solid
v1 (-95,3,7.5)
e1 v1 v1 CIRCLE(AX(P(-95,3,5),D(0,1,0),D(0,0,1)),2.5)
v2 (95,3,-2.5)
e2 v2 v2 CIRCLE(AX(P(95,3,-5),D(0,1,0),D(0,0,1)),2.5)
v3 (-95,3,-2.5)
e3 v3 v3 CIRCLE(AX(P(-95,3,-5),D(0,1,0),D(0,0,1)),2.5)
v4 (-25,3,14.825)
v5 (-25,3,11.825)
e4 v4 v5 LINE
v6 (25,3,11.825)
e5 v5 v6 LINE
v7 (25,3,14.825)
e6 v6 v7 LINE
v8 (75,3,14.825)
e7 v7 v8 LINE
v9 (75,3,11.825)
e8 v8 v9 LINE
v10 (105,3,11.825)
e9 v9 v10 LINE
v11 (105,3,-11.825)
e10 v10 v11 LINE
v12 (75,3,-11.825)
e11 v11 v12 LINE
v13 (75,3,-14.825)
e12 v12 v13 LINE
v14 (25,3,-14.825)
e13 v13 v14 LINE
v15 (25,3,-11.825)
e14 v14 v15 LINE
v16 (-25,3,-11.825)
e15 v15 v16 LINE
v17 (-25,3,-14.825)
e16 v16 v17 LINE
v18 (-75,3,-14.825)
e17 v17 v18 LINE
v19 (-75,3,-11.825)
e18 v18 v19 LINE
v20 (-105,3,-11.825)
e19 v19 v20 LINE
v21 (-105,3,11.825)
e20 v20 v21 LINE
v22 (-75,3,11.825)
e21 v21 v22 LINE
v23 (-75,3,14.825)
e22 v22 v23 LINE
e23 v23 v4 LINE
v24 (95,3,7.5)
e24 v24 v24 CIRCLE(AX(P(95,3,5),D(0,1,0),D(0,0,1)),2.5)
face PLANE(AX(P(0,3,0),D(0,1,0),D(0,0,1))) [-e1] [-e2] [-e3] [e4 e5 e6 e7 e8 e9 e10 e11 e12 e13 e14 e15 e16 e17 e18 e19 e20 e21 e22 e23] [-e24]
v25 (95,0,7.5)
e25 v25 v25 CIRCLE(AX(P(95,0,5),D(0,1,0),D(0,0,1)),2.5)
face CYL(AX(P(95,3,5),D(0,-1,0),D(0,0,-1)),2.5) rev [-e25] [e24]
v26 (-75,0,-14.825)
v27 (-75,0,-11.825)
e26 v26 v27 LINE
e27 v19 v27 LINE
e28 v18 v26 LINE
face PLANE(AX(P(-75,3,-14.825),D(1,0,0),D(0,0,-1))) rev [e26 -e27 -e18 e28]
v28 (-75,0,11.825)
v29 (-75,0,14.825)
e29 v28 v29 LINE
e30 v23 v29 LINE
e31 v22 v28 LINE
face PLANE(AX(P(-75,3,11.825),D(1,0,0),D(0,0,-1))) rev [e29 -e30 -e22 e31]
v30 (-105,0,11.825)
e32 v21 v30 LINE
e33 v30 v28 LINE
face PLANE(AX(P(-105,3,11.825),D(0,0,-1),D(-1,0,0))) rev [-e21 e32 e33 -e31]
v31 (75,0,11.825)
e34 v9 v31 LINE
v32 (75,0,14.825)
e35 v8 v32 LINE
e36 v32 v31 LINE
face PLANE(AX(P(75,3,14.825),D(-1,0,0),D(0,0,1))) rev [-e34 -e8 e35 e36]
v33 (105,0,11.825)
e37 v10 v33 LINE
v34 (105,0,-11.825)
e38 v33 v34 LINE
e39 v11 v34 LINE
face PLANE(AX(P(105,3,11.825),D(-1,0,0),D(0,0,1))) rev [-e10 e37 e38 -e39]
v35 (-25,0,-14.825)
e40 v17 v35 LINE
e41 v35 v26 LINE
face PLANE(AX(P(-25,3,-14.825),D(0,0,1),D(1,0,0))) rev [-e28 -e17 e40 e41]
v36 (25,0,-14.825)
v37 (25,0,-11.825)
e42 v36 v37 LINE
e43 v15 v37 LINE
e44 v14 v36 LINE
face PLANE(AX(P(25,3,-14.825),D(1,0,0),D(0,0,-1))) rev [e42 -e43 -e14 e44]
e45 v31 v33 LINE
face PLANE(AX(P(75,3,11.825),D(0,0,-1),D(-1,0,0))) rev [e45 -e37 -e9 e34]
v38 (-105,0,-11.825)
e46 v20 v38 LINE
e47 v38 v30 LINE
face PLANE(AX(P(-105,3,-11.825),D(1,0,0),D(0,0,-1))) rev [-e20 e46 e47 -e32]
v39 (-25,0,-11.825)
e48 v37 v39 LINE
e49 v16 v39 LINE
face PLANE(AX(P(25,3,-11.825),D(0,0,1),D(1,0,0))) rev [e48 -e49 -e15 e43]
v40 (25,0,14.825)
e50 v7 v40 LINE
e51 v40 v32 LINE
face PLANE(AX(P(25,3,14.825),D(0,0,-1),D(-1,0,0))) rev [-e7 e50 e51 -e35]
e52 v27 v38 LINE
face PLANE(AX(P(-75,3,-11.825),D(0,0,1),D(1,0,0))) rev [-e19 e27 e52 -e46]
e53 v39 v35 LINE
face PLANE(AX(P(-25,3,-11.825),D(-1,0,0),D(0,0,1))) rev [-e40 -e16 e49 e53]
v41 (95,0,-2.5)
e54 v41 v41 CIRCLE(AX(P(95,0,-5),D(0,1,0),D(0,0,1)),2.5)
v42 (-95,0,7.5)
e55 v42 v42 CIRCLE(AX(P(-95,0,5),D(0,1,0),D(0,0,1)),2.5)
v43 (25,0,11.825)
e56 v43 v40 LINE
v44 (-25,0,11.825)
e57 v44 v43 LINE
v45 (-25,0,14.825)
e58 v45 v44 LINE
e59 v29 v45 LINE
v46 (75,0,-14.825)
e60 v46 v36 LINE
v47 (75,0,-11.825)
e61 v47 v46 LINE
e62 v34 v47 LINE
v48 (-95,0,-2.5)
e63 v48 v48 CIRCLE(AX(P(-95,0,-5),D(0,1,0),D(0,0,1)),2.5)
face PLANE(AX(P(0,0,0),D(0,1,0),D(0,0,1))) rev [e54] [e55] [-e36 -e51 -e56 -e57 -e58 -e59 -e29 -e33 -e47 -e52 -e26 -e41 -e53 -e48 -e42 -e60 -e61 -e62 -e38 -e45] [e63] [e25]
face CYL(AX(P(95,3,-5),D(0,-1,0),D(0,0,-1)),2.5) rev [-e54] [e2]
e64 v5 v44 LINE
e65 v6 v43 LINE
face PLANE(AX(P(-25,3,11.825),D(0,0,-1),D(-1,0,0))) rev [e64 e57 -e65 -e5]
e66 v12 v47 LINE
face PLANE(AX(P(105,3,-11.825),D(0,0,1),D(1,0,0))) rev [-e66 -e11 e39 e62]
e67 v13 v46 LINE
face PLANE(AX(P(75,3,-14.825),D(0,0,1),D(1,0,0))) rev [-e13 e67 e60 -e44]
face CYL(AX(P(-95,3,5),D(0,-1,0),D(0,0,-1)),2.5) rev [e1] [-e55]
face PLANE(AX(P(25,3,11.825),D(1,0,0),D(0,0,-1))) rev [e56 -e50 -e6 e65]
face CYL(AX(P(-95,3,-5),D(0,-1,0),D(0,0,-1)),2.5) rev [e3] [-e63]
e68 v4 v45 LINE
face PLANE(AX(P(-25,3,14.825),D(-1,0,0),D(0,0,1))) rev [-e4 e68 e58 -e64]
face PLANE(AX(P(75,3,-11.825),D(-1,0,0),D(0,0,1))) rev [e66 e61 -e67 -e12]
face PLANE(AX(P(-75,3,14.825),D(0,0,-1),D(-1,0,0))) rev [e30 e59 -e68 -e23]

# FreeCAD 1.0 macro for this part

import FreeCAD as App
import Part
import Sketcher

V = App.Vector
Q = App.Units.Quantity


def add_polygon(sketch, points):
    """Adds a closed chain of lines whose ends are joined by coincident constraints."""
    first, n = sketch.GeometryCount, len(points)
    for a, b in zip(points, points[1:] + points[:1]):
        sketch.addGeometry(Part.LineSegment(App.Vector(*a, 0), App.Vector(*b, 0)), False)
    for i in range(n):
        sketch.addConstraint(Sketcher.Constraint("Coincident", first + i, 2, first + (i + 1) % n, 1))

doc = App.newDocument("Part")
body = doc.addObject("PartDesign::Body", "Body")

# Sketch on XZ plane
sketch1 = body.newObject("Sketcher::SketchObject", "Sketch")
sketch1.AttachmentSupport = (doc.getObject("XZ_Plane"), [""])
sketch1.MapMode = "FlatFace"
add_polygon(sketch1, [(-105, 11.8), (-75, 11.8), (-75, 14.8), (-25, 14.8), (-25, 11.8), (25, 11.8), (25, 14.8), (75, 14.8), (75, 11.8), (105, 11.8), (105, -11.8), (75, -11.8), (75, -14.8), (25, -14.8), (25, -11.8), (-25, -11.8), (-25, -14.8), (-75, -14.8), (-75, -11.8), (-105, -11.8)])  # lines 0-19
sketch1.addGeometry(Part.Circle(V(-95, 5, 0), V(0, 0, 1), 2.5), False)  # 20
sketch1.addGeometry(Part.Circle(V(95, 5, 0), V(0, 0, 1), 2.5), False)  # 21
sketch1.addGeometry(Part.Circle(V(-95, -5, 0), V(0, 0, 1), 2.5), False)  # 22
sketch1.addGeometry(Part.Circle(V(95, -5, 0), V(0, 0, 1), 2.5), False)  # 23
sketch1.addConstraint(Sketcher.Constraint("Horizontal", 0))
sketch1.addConstraint(Sketcher.Constraint("Vertical", 1))
sketch1.addConstraint(Sketcher.Constraint("Horizontal", 2))
sketch1.addConstraint(Sketcher.Constraint("Vertical", 3))
sketch1.addConstraint(Sketcher.Constraint("Horizontal", 4))
sketch1.addConstraint(Sketcher.Constraint("Vertical", 5))
sketch1.addConstraint(Sketcher.Constraint("Horizontal", 6))
sketch1.addConstraint(Sketcher.Constraint("Vertical", 7))
sketch1.addConstraint(Sketcher.Constraint("Horizontal", 8))
sketch1.addConstraint(Sketcher.Constraint("Vertical", 9))
sketch1.addConstraint(Sketcher.Constraint("Horizontal", 10))
sketch1.addConstraint(Sketcher.Constraint("Vertical", 11))
sketch1.addConstraint(Sketcher.Constraint("Horizontal", 12))
sketch1.addConstraint(Sketcher.Constraint("Vertical", 13))
sketch1.addConstraint(Sketcher.Constraint("Horizontal", 14))
sketch1.addConstraint(Sketcher.Constraint("Vertical", 15))
sketch1.addConstraint(Sketcher.Constraint("Horizontal", 16))
sketch1.addConstraint(Sketcher.Constraint("Vertical", 17))
sketch1.addConstraint(Sketcher.Constraint("Horizontal", 18))
sketch1.addConstraint(Sketcher.Constraint("Vertical", 19))
sketch1.addConstraint(Sketcher.Constraint("Equal", 20, 21))
sketch1.addConstraint(Sketcher.Constraint("Equal", 21, 22))
sketch1.addConstraint(Sketcher.Constraint("Equal", 22, 23))
sketch1.addConstraint(Sketcher.Constraint("Symmetric", 21, 3, 22, 3, -1, 1))
sketch1.addConstraint(Sketcher.Constraint("Symmetric", 20, 3, 23, 3, -1, 1))
sketch1.addConstraint(Sketcher.Constraint("Symmetric", 0, 2, 10, 2, -1, 1))
sketch1.addConstraint(Sketcher.Constraint("Symmetric", 2, 2, 12, 2, -1, 1))
sketch1.addConstraint(Sketcher.Constraint("Symmetric", 4, 2, 14, 2, -1, 1))
sketch1.addConstraint(Sketcher.Constraint("Symmetric", 6, 2, 16, 2, -1, 1))
sketch1.addConstraint(Sketcher.Constraint("Symmetric", 8, 2, 18, 2, -1, 1))
sketch1.addConstraint(Sketcher.Constraint("Symmetric", 20, 3, 21, 3, -2))
sketch1.addConstraint(Sketcher.Constraint("Symmetric", 2, 2, 5, 2, -2))
sketch1.addConstraint(Sketcher.Constraint("Symmetric", 0, 2, 7, 2, -2))
sketch1.addConstraint(Sketcher.Constraint("Horizontal", 0, 2, 3, 2))
sketch1.addConstraint(Sketcher.Constraint("Equal", 2, 4))
sketch1.addConstraint(Sketcher.Constraint("Diameter", 20, Q("5 mm")))
sketch1.addConstraint(Sketcher.Constraint("DistanceX", 0, 1, 0, 2, Q("30 mm")))
sketch1.addConstraint(Sketcher.Constraint("DistanceX", 2, 1, 2, 2, Q("50 mm")))
sketch1.addConstraint(Sketcher.Constraint("DistanceY", 1, 1, 1, 2, Q("3 mm")))
sketch1.addConstraint(Sketcher.Constraint("DistanceX", 20, 3, -1, 1, Q("95 mm")))
sketch1.addConstraint(Sketcher.Constraint("DistanceY", -1, 1, 20, 3, Q("5 mm")))
sketch1.addConstraint(Sketcher.Constraint("DistanceY", 9, 2, 9, 1, Q("23.65 mm")))
pad1 = body.newObject("PartDesign::Pad", "Pad")
pad1.Profile = sketch1
pad1.Length = 3
pad1.Reversed = True

doc.recompute()
